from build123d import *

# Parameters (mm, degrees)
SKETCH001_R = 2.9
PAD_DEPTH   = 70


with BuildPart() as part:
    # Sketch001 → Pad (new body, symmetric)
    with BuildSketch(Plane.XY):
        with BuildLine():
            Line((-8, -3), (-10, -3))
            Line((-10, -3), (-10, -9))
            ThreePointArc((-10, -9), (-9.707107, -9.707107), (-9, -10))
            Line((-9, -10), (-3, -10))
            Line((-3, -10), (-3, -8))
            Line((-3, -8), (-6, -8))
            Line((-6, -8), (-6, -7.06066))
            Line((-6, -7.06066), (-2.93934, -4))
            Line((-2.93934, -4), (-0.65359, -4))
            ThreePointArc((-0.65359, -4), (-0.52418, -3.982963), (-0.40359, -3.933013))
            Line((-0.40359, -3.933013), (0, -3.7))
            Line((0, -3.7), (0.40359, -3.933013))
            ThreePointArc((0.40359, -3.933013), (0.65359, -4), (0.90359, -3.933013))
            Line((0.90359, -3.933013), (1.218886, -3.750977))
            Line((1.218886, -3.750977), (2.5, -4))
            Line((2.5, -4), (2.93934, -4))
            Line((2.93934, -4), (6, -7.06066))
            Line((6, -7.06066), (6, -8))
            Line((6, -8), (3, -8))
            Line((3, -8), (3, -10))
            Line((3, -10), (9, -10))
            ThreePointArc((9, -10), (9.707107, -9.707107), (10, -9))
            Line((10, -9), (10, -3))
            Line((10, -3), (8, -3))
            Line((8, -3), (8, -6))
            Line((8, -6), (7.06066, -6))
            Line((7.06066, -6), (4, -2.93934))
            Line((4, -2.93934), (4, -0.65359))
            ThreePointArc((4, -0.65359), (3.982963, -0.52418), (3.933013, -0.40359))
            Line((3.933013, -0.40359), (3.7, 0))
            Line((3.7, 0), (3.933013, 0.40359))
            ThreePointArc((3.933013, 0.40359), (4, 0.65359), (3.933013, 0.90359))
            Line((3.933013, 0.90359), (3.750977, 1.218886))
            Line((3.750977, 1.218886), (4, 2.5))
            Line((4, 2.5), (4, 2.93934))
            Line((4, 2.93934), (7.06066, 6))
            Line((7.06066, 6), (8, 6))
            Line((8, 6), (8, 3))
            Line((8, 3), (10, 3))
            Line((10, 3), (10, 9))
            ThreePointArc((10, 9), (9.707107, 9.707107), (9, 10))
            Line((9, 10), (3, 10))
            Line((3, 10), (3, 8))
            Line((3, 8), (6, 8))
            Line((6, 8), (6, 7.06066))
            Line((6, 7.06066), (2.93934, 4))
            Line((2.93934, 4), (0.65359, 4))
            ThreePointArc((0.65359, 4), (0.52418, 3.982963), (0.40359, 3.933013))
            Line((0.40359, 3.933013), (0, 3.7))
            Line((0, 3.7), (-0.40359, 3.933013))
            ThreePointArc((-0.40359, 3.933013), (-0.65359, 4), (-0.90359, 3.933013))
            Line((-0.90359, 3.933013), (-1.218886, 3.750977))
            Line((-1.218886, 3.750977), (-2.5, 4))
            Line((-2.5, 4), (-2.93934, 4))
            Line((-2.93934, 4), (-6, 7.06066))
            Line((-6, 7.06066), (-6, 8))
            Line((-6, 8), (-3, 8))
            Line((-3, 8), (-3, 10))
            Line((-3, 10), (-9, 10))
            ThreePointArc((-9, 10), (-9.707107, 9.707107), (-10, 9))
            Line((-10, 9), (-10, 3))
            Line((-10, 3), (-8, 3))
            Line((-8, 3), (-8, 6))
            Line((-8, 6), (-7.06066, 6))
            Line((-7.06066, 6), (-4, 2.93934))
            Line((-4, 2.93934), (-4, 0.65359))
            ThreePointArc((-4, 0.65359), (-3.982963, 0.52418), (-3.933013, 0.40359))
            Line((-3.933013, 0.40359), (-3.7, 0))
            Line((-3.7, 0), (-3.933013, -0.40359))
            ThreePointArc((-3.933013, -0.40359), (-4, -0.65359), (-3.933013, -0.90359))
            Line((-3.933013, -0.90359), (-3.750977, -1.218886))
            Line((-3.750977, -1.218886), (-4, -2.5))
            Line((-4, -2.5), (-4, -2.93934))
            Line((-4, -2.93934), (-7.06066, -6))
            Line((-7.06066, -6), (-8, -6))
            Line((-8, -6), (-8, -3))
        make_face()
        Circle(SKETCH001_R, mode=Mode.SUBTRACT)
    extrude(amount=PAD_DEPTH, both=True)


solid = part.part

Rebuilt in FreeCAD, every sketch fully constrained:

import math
import FreeCAD as App
import Part
import Sketcher
from FreeCAD import Vector
Q = App.Units.Quantity

doc = App.newDocument("Part")
body = doc.addObject("PartDesign::Body", "Body")

# Sketch on XY plane
sketch1 = body.newObject("Sketcher::SketchObject", "Sketch")
sketch1.AttachmentSupport = (doc.getObject("XY_Plane"), [""])
sketch1.MapMode = "FlatFace"
sketch1.addGeometry([
    Part.LineSegment(Vector(-8, -3, 0), Vector(-10, -3, 0)),  # 0
    Part.LineSegment(Vector(-10, -3, 0), Vector(-10, -9, 0)),  # 1
    Part.ArcOfCircle(Part.Circle(Vector(-9, -9, 0), Vector(0, 0, 1), 1), math.radians(180), math.radians(270)),  # 2
    Part.LineSegment(Vector(-9, -10, 0), Vector(-3, -10, 0)),  # 3
    Part.LineSegment(Vector(-3, -10, 0), Vector(-3, -8, 0)),  # 4
    Part.LineSegment(Vector(-3, -8, 0), Vector(-6, -8, 0)),  # 5
    Part.LineSegment(Vector(-6, -8, 0), Vector(-6, -7.06, 0)),  # 6
    Part.LineSegment(Vector(-6, -7.06, 0), Vector(-2.94, -4, 0)),  # 7
    Part.LineSegment(Vector(-2.94, -4, 0), Vector(-0.65, -4, 0)),  # 8
    Part.ArcOfCircle(Part.Circle(Vector(-0.65, -3.5, 0), Vector(0, 0, 1), 0.5), math.radians(-90), math.radians(-60)),  # 9
    Part.LineSegment(Vector(-0.4, -3.93, 0), Vector(0, -3.7, 0)),  # 10
    Part.LineSegment(Vector(0, -3.7, 0), Vector(0.4, -3.93, 0)),  # 11
    Part.ArcOfCircle(Part.Circle(Vector(0.65, -3.5, 0), Vector(0, 0, 1), 0.5), math.radians(-120), math.radians(-60)),  # 12
    Part.LineSegment(Vector(0.9, -3.93, 0), Vector(1.22, -3.75, 0)),  # 13
    Part.LineSegment(Vector(1.22, -3.75, 0), Vector(2.5, -4, 0)),  # 14
    Part.LineSegment(Vector(2.5, -4, 0), Vector(2.94, -4, 0)),  # 15
    Part.LineSegment(Vector(2.94, -4, 0), Vector(6, -7.06, 0)),  # 16
    Part.LineSegment(Vector(6, -7.06, 0), Vector(6, -8, 0)),  # 17
    Part.LineSegment(Vector(6, -8, 0), Vector(3, -8, 0)),  # 18
    Part.LineSegment(Vector(3, -8, 0), Vector(3, -10, 0)),  # 19
    Part.LineSegment(Vector(3, -10, 0), Vector(9, -10, 0)),  # 20
    Part.ArcOfCircle(Part.Circle(Vector(9, -9, 0), Vector(0, 0, 1), 1), math.radians(-90), math.radians(0)),  # 21
    Part.LineSegment(Vector(10, -9, 0), Vector(10, -3, 0)),  # 22
    Part.LineSegment(Vector(10, -3, 0), Vector(8, -3, 0)),  # 23
    Part.LineSegment(Vector(8, -3, 0), Vector(8, -6, 0)),  # 24
    Part.LineSegment(Vector(8, -6, 0), Vector(7.06, -6, 0)),  # 25
    Part.LineSegment(Vector(7.06, -6, 0), Vector(4, -2.94, 0)),  # 26
    Part.LineSegment(Vector(4, -2.94, 0), Vector(4, -0.65, 0)),  # 27
    Part.ArcOfCircle(Part.Circle(Vector(3.5, -0.65, 0), Vector(0, 0, 1), 0.5), math.radians(0), math.radians(30)),  # 28
    Part.LineSegment(Vector(3.93, -0.4, 0), Vector(3.7, 0, 0)),  # 29
    Part.LineSegment(Vector(3.7, 0, 0), Vector(3.93, 0.4, 0)),  # 30
    Part.ArcOfCircle(Part.Circle(Vector(3.5, 0.65, 0), Vector(0, 0, 1), 0.5), math.radians(-30), math.radians(30)),  # 31
    Part.LineSegment(Vector(3.93, 0.9, 0), Vector(3.75, 1.22, 0)),  # 32
    Part.LineSegment(Vector(3.75, 1.22, 0), Vector(4, 2.5, 0)),  # 33
    Part.LineSegment(Vector(4, 2.5, 0), Vector(4, 2.94, 0)),  # 34
    Part.LineSegment(Vector(4, 2.94, 0), Vector(7.06, 6, 0)),  # 35
    Part.LineSegment(Vector(7.06, 6, 0), Vector(8, 6, 0)),  # 36
    Part.LineSegment(Vector(8, 6, 0), Vector(8, 3, 0)),  # 37
    Part.LineSegment(Vector(8, 3, 0), Vector(10, 3, 0)),  # 38
    Part.LineSegment(Vector(10, 3, 0), Vector(10, 9, 0)),  # 39
    Part.ArcOfCircle(Part.Circle(Vector(9, 9, 0), Vector(0, 0, 1), 1), math.radians(0), math.radians(90)),  # 40
    Part.LineSegment(Vector(9, 10, 0), Vector(3, 10, 0)),  # 41
    Part.LineSegment(Vector(3, 10, 0), Vector(3, 8, 0)),  # 42
    Part.LineSegment(Vector(3, 8, 0), Vector(6, 8, 0)),  # 43
    Part.LineSegment(Vector(6, 8, 0), Vector(6, 7.06, 0)),  # 44
    Part.LineSegment(Vector(6, 7.06, 0), Vector(2.94, 4, 0)),  # 45
    Part.LineSegment(Vector(2.94, 4, 0), Vector(0.65, 4, 0)),  # 46
    Part.ArcOfCircle(Part.Circle(Vector(0.65, 3.5, 0), Vector(0, 0, 1), 0.5), math.radians(90), math.radians(120)),  # 47
    Part.LineSegment(Vector(0.4, 3.93, 0), Vector(0, 3.7, 0)),  # 48
    Part.LineSegment(Vector(0, 3.7, 0), Vector(-0.4, 3.93, 0)),  # 49
    Part.ArcOfCircle(Part.Circle(Vector(-0.65, 3.5, 0), Vector(0, 0, 1), 0.5), math.radians(60), math.radians(120)),  # 50
    Part.LineSegment(Vector(-0.9, 3.93, 0), Vector(-1.22, 3.75, 0)),  # 51
    Part.LineSegment(Vector(-1.22, 3.75, 0), Vector(-2.5, 4, 0)),  # 52
    Part.LineSegment(Vector(-2.5, 4, 0), Vector(-2.94, 4, 0)),  # 53
    Part.LineSegment(Vector(-2.94, 4, 0), Vector(-6, 7.06, 0)),  # 54
    Part.LineSegment(Vector(-6, 7.06, 0), Vector(-6, 8, 0)),  # 55
    Part.LineSegment(Vector(-6, 8, 0), Vector(-3, 8, 0)),  # 56
    Part.LineSegment(Vector(-3, 8, 0), Vector(-3, 10, 0)),  # 57
    Part.LineSegment(Vector(-3, 10, 0), Vector(-9, 10, 0)),  # 58
    Part.ArcOfCircle(Part.Circle(Vector(-9, 9, 0), Vector(0, 0, 1), 1), math.radians(90), math.radians(180)),  # 59
    Part.LineSegment(Vector(-10, 9, 0), Vector(-10, 3, 0)),  # 60
    Part.LineSegment(Vector(-10, 3, 0), Vector(-8, 3, 0)),  # 61
    Part.LineSegment(Vector(-8, 3, 0), Vector(-8, 6, 0)),  # 62
    Part.LineSegment(Vector(-8, 6, 0), Vector(-7.06, 6, 0)),  # 63
    Part.LineSegment(Vector(-7.06, 6, 0), Vector(-4, 2.94, 0)),  # 64
    Part.LineSegment(Vector(-4, 2.94, 0), Vector(-4, 0.65, 0)),  # 65
    Part.ArcOfCircle(Part.Circle(Vector(-3.5, 0.65, 0), Vector(0, 0, 1), 0.5), math.radians(180), math.radians(210)),  # 66
    Part.LineSegment(Vector(-3.93, 0.4, 0), Vector(-3.7, 0, 0)),  # 67
    Part.LineSegment(Vector(-3.7, 0, 0), Vector(-3.93, -0.4, 0)),  # 68
    Part.ArcOfCircle(Part.Circle(Vector(-3.5, -0.65, 0), Vector(0, 0, 1), 0.5), math.radians(150), math.radians(210)),  # 69
    Part.LineSegment(Vector(-3.93, -0.9, 0), Vector(-3.75, -1.22, 0)),  # 70
    Part.LineSegment(Vector(-3.75, -1.22, 0), Vector(-4, -2.5, 0)),  # 71
    Part.LineSegment(Vector(-4, -2.5, 0), Vector(-4, -2.94, 0)),  # 72
    Part.LineSegment(Vector(-4, -2.94, 0), Vector(-7.06, -6, 0)),  # 73
    Part.LineSegment(Vector(-7.06, -6, 0), Vector(-8, -6, 0)),  # 74
    Part.LineSegment(Vector(-8, -6, 0), Vector(-8, -3, 0)),  # 75
    Part.Circle(Vector(0, 0, 0), Vector(0, 0, 1), 2.9),  # 76
], False)
sketch1.addConstraint([
    Sketcher.Constraint("Coincident", 0, 2, 1, 1),
    Sketcher.Constraint("Tangent", 1, 2, 2, 1),
    Sketcher.Constraint("Tangent", 2, 2, 3, 1),
    Sketcher.Constraint("Coincident", 3, 2, 4, 1),
    Sketcher.Constraint("Coincident", 4, 2, 5, 1),
    Sketcher.Constraint("Coincident", 5, 2, 6, 1),
    Sketcher.Constraint("Coincident", 6, 2, 7, 1),
    Sketcher.Constraint("Coincident", 7, 2, 8, 1),
    Sketcher.Constraint("Coincident", 8, 2, 9, 1),
    Sketcher.Constraint("Tangent", 9, 2, 10, 1),
    Sketcher.Constraint("Coincident", 10, 2, 11, 1),
    Sketcher.Constraint("Coincident", 11, 2, 12, 1),
    Sketcher.Constraint("Tangent", 12, 2, 13, 1),
    Sketcher.Constraint("Coincident", 13, 2, 14, 1),
    Sketcher.Constraint("Coincident", 14, 2, 15, 1),
    Sketcher.Constraint("Coincident", 15, 2, 16, 1),
    Sketcher.Constraint("Coincident", 16, 2, 17, 1),
    Sketcher.Constraint("Coincident", 17, 2, 18, 1),
    Sketcher.Constraint("Coincident", 18, 2, 19, 1),
    Sketcher.Constraint("Coincident", 19, 2, 20, 1),
    Sketcher.Constraint("Tangent", 20, 2, 21, 1),
    Sketcher.Constraint("Tangent", 21, 2, 22, 1),
    Sketcher.Constraint("Coincident", 22, 2, 23, 1),
    Sketcher.Constraint("Coincident", 23, 2, 24, 1),
    Sketcher.Constraint("Coincident", 24, 2, 25, 1),
    Sketcher.Constraint("Coincident", 25, 2, 26, 1),
    Sketcher.Constraint("Coincident", 26, 2, 27, 1),
    Sketcher.Constraint("Coincident", 27, 2, 28, 1),
    Sketcher.Constraint("Tangent", 28, 2, 29, 1),
    Sketcher.Constraint("Coincident", 29, 2, 30, 1),
    Sketcher.Constraint("Coincident", 30, 2, 31, 1),
    Sketcher.Constraint("Tangent", 31, 2, 32, 1),
    Sketcher.Constraint("Coincident", 32, 2, 33, 1),
    Sketcher.Constraint("Coincident", 33, 2, 34, 1),
    Sketcher.Constraint("Coincident", 34, 2, 35, 1),
    Sketcher.Constraint("Coincident", 35, 2, 36, 1),
    Sketcher.Constraint("Coincident", 36, 2, 37, 1),
    Sketcher.Constraint("Coincident", 37, 2, 38, 1),
    Sketcher.Constraint("Coincident", 38, 2, 39, 1),
    Sketcher.Constraint("Tangent", 39, 2, 40, 1),
    Sketcher.Constraint("Tangent", 40, 2, 41, 1),
    Sketcher.Constraint("Coincident", 41, 2, 42, 1),
    Sketcher.Constraint("Coincident", 42, 2, 43, 1),
    Sketcher.Constraint("Coincident", 43, 2, 44, 1),
    Sketcher.Constraint("Coincident", 44, 2, 45, 1),
    Sketcher.Constraint("Coincident", 45, 2, 46, 1),
    Sketcher.Constraint("Coincident", 46, 2, 47, 1),
    Sketcher.Constraint("Tangent", 47, 2, 48, 1),
    Sketcher.Constraint("Coincident", 48, 2, 49, 1),
    Sketcher.Constraint("Coincident", 49, 2, 50, 1),
    Sketcher.Constraint("Tangent", 50, 2, 51, 1),
    Sketcher.Constraint("Coincident", 51, 2, 52, 1),
    Sketcher.Constraint("Coincident", 52, 2, 53, 1),
    Sketcher.Constraint("Coincident", 53, 2, 54, 1),
    Sketcher.Constraint("Coincident", 54, 2, 55, 1),
    Sketcher.Constraint("Coincident", 55, 2, 56, 1),
    Sketcher.Constraint("Coincident", 56, 2, 57, 1),
    Sketcher.Constraint("Coincident", 57, 2, 58, 1),
    Sketcher.Constraint("Tangent", 58, 2, 59, 1),
    Sketcher.Constraint("Tangent", 59, 2, 60, 1),
    Sketcher.Constraint("Coincident", 60, 2, 61, 1),
    Sketcher.Constraint("Coincident", 61, 2, 62, 1),
    Sketcher.Constraint("Coincident", 62, 2, 63, 1),
    Sketcher.Constraint("Coincident", 63, 2, 64, 1),
    Sketcher.Constraint("Coincident", 64, 2, 65, 1),
    Sketcher.Constraint("Coincident", 65, 2, 66, 1),
    Sketcher.Constraint("Tangent", 66, 2, 67, 1),
    Sketcher.Constraint("Coincident", 67, 2, 68, 1),
    Sketcher.Constraint("Coincident", 68, 2, 69, 1),
    Sketcher.Constraint("Tangent", 69, 2, 70, 1),
    Sketcher.Constraint("Coincident", 70, 2, 71, 1),
    Sketcher.Constraint("Coincident", 71, 2, 72, 1),
    Sketcher.Constraint("Coincident", 72, 2, 73, 1),
    Sketcher.Constraint("Coincident", 73, 2, 74, 1),
    Sketcher.Constraint("Coincident", 74, 2, 75, 1),
    Sketcher.Constraint("Coincident", 75, 2, 0, 1),
    Sketcher.Constraint("Horizontal", 0),
    Sketcher.Constraint("Vertical", 1),
    Sketcher.Constraint("Horizontal", 3),
    Sketcher.Constraint("Vertical", 4),
    Sketcher.Constraint("Horizontal", 5),
    Sketcher.Constraint("Vertical", 6),
    Sketcher.Constraint("Horizontal", 8),
    Sketcher.Constraint("Horizontal", 15),
    Sketcher.Constraint("Vertical", 17),
    Sketcher.Constraint("Horizontal", 18),
    Sketcher.Constraint("Vertical", 19),
    Sketcher.Constraint("Horizontal", 20),
    Sketcher.Constraint("Vertical", 22),
    Sketcher.Constraint("Horizontal", 23),
    Sketcher.Constraint("Vertical", 24),
    Sketcher.Constraint("Horizontal", 25),
    Sketcher.Constraint("Vertical", 27),
    Sketcher.Constraint("Vertical", 34),
    Sketcher.Constraint("Horizontal", 36),
    Sketcher.Constraint("Vertical", 37),
    Sketcher.Constraint("Horizontal", 38),
    Sketcher.Constraint("Vertical", 39),
    Sketcher.Constraint("Horizontal", 41),
    Sketcher.Constraint("Vertical", 42),
    Sketcher.Constraint("Horizontal", 43),
    Sketcher.Constraint("Vertical", 44),
    Sketcher.Constraint("Horizontal", 46),
    Sketcher.Constraint("Horizontal", 53),
    Sketcher.Constraint("Vertical", 55),
    Sketcher.Constraint("Horizontal", 56),
    Sketcher.Constraint("Vertical", 57),
    Sketcher.Constraint("Horizontal", 58),
    Sketcher.Constraint("Vertical", 60),
    Sketcher.Constraint("Horizontal", 61),
    Sketcher.Constraint("Vertical", 62),
    Sketcher.Constraint("Horizontal", 63),
    Sketcher.Constraint("Vertical", 65),
    Sketcher.Constraint("Vertical", 72),
    Sketcher.Constraint("Horizontal", 74),
    Sketcher.Constraint("Vertical", 75),
    Sketcher.Constraint("Coincident", 76, 3, -1, 1),
    Sketcher.Constraint("Equal", 2, 21),
    Sketcher.Constraint("Equal", 9, 28),
    Sketcher.Constraint("Equal", 12, 31),
    Sketcher.Constraint("Equal", 21, 40),
    Sketcher.Constraint("Equal", 28, 47),
    Sketcher.Constraint("Equal", 31, 50),
    Sketcher.Constraint("Equal", 40, 59),
    Sketcher.Constraint("Equal", 47, 66),
    Sketcher.Constraint("Equal", 50, 69),
    Sketcher.Constraint("Symmetric", 2, 3, 40, 3, -1, 1),
    Sketcher.Constraint("Symmetric", 9, 3, 47, 3, -1, 1),
    Sketcher.Constraint("Symmetric", 12, 3, 50, 3, -1, 1),
    Sketcher.Constraint("Symmetric", 21, 3, 59, 3, -1, 1),
    Sketcher.Constraint("Symmetric", 28, 3, 66, 3, -1, 1),
    Sketcher.Constraint("Symmetric", 31, 3, 69, 3, -1, 1),
    Sketcher.Constraint("Symmetric", 4, 2, 42, 2, -1, 1),
    Sketcher.Constraint("Symmetric", 6, 2, 44, 2, -1, 1),
    Sketcher.Constraint("Symmetric", 10, 2, 48, 2, -1, 1),
    Sketcher.Constraint("Symmetric", 13, 2, 51, 2, -1, 1),
    Sketcher.Constraint("Symmetric", 14, 2, 52, 2, -1, 1),
    Sketcher.Constraint("Symmetric", 16, 2, 54, 2, -1, 1),
    Sketcher.Constraint("Symmetric", 18, 2, 56, 2, -1, 1),
    Sketcher.Constraint("Symmetric", 23, 2, 61, 2, -1, 1),
    Sketcher.Constraint("Symmetric", 25, 2, 63, 2, -1, 1),
    Sketcher.Constraint("Symmetric", 29, 2, 67, 2, -1, 1),
    Sketcher.Constraint("Symmetric", 32, 2, 70, 2, -1, 1),
    Sketcher.Constraint("Symmetric", 33, 2, 71, 2, -1, 1),
    Sketcher.Constraint("Symmetric", 35, 2, 73, 2, -1, 1),
    Sketcher.Constraint("Symmetric", 37, 2, 75, 2, -1, 1),
    Sketcher.Constraint("Symmetric", 9, 3, 12, 3, -2),
    Sketcher.Constraint("Symmetric", 2, 3, 21, 3, -2),
    Sketcher.Constraint("Symmetric", 31, 3, 66, 3, -2),
    Sketcher.Constraint("Symmetric", 9, 2, 11, 2, -2),
    Sketcher.Constraint("Symmetric", 7, 2, 15, 2, -2),
    Sketcher.Constraint("Symmetric", 6, 2, 16, 2, -2),
    Sketcher.Constraint("Symmetric", 4, 2, 18, 2, -2),
    Sketcher.Constraint("Symmetric", 37, 2, 61, 2, -2),
    Sketcher.Constraint("Symmetric", 35, 2, 63, 2, -2),
    Sketcher.Constraint("Symmetric", 34, 2, 64, 2, -2),
    Sketcher.Constraint("PointOnObject", 10, 2, -2),
    Sketcher.Constraint("PointOnObject", 29, 2, -1),
    Sketcher.Constraint("Parallel", 10, 13),
    Sketcher.Constraint("Perpendicular", 7, 16),
    Sketcher.Constraint("Parallel", 16, 26),
    Sketcher.Constraint("Perpendicular", 13, 29),
    Sketcher.Constraint("Parallel", 29, 32),
    Sketcher.Constraint("Perpendicular", 14, 33),
    Sketcher.Constraint("Perpendicular", 26, 35),
    Sketcher.Constraint("Parallel", 35, 45),
    Sketcher.Constraint("Perpendicular", 45, 54),
    Sketcher.Constraint("Perpendicular", 64, 73),
    Sketcher.Constraint("Horizontal", 69, 3, 27, 2),
    Sketcher.Constraint("Horizontal", 47, 2, 49, 2),
    Sketcher.Constraint("Horizontal", 66, 3, 65, 2),
    Sketcher.Constraint("Horizontal", 30, 2, 66, 2),
    Sketcher.Constraint("Horizontal", 28, 2, 68, 2),
    Sketcher.Constraint("Vertical", 50, 3, 8, 2),
    Sketcher.Constraint("Vertical", 47, 3, 46, 2),
    Sketcher.Constraint("Equal", 58, 1),
    Sketcher.Constraint("Equal", 61, 4),
    Sketcher.Constraint("Equal", 74, 6),
    Sketcher.Constraint("Equal", 56, 24),
    Sketcher.Constraint("Equal", 46, 27),
    Sketcher.Constraint("Equal", 53, 34),
    Sketcher.Constraint("Equal", 16, 26),
    Sketcher.Constraint("Equal", 11, 29),
    Sketcher.Constraint("Radius", 2, Q("0.999999 mm")),
    Sketcher.Constraint("Diameter", 76, Q("5.8 mm")),
    Sketcher.Constraint("Radius", 12, Q("0.500002 mm")),
    Sketcher.Constraint("DistanceX", 0, 2, 0, 1, Q("2 mm")),
    Sketcher.Constraint("DistanceX", 3, 1, 3, 2, Q("6 mm")),
    Sketcher.Constraint("DistanceX", 5, 2, 5, 1, Q("3 mm")),
    Sketcher.Constraint("Angle", 14, Q("-10.999986 deg")),
    Sketcher.Constraint("DistanceX", 2, 3, -1, 1, Q("9.000001 mm")),
    Sketcher.Constraint("DistanceY", 7, 2, -1, 1, Q("4 mm")),
    Sketcher.Constraint("DistanceY", 10, 2, -1, 1, Q("3.7 mm")),
    Sketcher.Constraint("DistanceX", -1, 1, 14, 2, Q("2.5 mm")),
    Sketcher.Constraint("DistanceX", 8, 1, 8, 2, Q("2.28575 mm")),
    Sketcher.Constraint("DistanceX", 15, 1, 15, 2, Q("0.43934 mm")),
])
pad1 = body.newObject("PartDesign::Pad", "Pad")
pad1.Profile = sketch1
pad1.Length = 140
pad1.Midplane = True

doc.recompute()
